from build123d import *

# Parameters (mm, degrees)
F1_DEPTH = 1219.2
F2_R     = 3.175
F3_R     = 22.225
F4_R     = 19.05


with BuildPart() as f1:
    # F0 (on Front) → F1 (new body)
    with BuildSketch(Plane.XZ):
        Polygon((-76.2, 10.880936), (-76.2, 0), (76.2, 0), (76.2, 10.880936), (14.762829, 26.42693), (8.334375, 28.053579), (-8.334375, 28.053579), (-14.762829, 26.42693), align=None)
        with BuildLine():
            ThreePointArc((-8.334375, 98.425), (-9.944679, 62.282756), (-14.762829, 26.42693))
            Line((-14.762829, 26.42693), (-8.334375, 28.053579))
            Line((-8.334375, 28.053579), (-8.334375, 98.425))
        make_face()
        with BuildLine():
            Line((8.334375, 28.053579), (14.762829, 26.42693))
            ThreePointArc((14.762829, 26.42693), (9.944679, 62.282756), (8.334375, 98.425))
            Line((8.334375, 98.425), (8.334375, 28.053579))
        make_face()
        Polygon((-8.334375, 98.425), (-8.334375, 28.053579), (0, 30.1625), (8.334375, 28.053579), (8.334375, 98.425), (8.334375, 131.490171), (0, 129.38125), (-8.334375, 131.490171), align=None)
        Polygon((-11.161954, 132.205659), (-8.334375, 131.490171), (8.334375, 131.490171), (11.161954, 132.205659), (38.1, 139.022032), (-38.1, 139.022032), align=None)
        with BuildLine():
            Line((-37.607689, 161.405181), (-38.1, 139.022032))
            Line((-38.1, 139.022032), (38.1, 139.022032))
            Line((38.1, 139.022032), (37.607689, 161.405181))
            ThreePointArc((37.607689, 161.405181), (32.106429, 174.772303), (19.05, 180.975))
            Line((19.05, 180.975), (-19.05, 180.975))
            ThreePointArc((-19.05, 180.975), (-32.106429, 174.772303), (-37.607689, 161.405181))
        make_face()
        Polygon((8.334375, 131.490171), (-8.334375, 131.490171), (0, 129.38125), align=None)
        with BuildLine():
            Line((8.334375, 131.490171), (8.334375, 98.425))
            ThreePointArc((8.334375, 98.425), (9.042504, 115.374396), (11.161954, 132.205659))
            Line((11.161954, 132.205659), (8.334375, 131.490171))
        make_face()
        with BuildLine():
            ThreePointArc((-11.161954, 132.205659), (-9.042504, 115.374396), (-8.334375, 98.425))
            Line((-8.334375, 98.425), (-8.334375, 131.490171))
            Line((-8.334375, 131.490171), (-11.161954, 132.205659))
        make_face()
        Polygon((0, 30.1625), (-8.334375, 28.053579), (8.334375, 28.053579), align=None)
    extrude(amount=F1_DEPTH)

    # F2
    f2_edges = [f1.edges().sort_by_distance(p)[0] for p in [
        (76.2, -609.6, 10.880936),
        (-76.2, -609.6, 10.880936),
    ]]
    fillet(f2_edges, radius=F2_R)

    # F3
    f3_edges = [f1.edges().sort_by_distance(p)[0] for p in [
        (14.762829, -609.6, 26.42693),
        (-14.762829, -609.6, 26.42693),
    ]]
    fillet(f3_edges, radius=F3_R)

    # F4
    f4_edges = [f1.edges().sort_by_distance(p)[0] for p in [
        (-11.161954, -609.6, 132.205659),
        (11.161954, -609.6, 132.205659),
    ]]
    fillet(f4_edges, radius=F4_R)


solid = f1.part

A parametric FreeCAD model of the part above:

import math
import FreeCAD as App
import Part
import Sketcher

V = App.Vector
Q = App.Units.Quantity


def edges_at(feature, points):
    """Names of the edges that pass closest to the given points."""
    edges = feature.Shape.Edges
    near = lambda p: min(range(len(edges)), key=lambda i: edges[i].distToShape(Part.Vertex(*p))[0])
    return sorted({f"Edge{near(p) + 1}" for p in points})

doc = App.newDocument("Part")
body = doc.addObject("PartDesign::Body", "Body")

sketch1 = body.newObject("Sketcher::SketchObject", "Sketch")
sketch1.AttachmentSupport = (doc.getObject("XZ_Plane"), [""])
sketch1.MapMode = "FlatFace"
sketch1.addGeometry([
    Part.LineSegment(V(-76.2, 10.880936, 0), V(-76.2, 0, 0)),
    Part.LineSegment(V(-76.2, 0, 0), V(76.2, 0, 0)),
    Part.LineSegment(V(76.2, 0, 0), V(76.2, 10.880936, 0)),
    Part.LineSegment(V(76.2, 10.880936, 0), V(14.762829, 26.42693, 0)),
    Part.ArcOfCircle(Part.Circle(V(414.734393, 98.425004, 0), V(0, 0, 1), 406.400018), math.radians(-179.999999), math.radians(-169.795583)),
    Part.ArcOfCircle(Part.Circle(V(211.53449, 98.424991, 0), V(0, 0, 1), 203.200115), math.radians(170.430529), math.radians(179.999997)),
    Part.LineSegment(V(11.161954, 132.205659, 0), V(38.1, 139.022032, 0)),
    Part.LineSegment(V(38.1, 139.022032, 0), V(37.607689, 161.405181, 0)),
    Part.ArcOfCircle(Part.Circle(V(17.544929, 160.963908, 0), V(0, 0, 1), 20.067612), math.radians(1.259996), math.radians(85.698779)),
    Part.LineSegment(V(19.05, 180.975, 0), V(-19.05, 180.975, 0)),
    Part.ArcOfCircle(Part.Circle(V(-17.544929, 160.963908, 0), V(0, 0, 1), 20.067612), math.radians(94.301221), math.radians(178.740004)),
    Part.LineSegment(V(-37.607689, 161.405181, 0), V(-38.1, 139.022032, 0)),
    Part.LineSegment(V(-38.1, 139.022032, 0), V(-11.161954, 132.205659, 0)),
    Part.ArcOfCircle(Part.Circle(V(-211.53449, 98.424991, 0), V(0, 0, 1), 203.200115), math.radians(0.000003), math.radians(9.569471)),
    Part.ArcOfCircle(Part.Circle(V(-414.734393, 98.425004, 0), V(0, 0, 1), 406.400018), math.radians(-10.204417), math.radians(-0.000001)),
    Part.LineSegment(V(-14.762829, 26.42693, 0), V(-76.2, 10.880936, 0)),
], False)
sketch1.addConstraint([
    Sketcher.Constraint("Coincident", 0, 2, 1, 1),
    Sketcher.Constraint("Coincident", 1, 2, 2, 1),
    Sketcher.Constraint("Coincident", 2, 2, 3, 1),
    Sketcher.Constraint("Coincident", 3, 2, 4, 2),
    Sketcher.Constraint("Tangent", 4, 1, 5, 2),
    Sketcher.Constraint("Coincident", 5, 1, 6, 1),
    Sketcher.Constraint("Coincident", 6, 2, 7, 1),
    Sketcher.Constraint("Tangent", 7, 2, 8, 1),
    Sketcher.Constraint("Coincident", 8, 2, 9, 1),
    Sketcher.Constraint("Coincident", 9, 2, 10, 1),
    Sketcher.Constraint("Tangent", 10, 2, 11, 1),
    Sketcher.Constraint("Coincident", 11, 2, 12, 1),
    Sketcher.Constraint("Coincident", 12, 2, 13, 2),
    Sketcher.Constraint("Tangent", 13, 1, 14, 2),
    Sketcher.Constraint("Coincident", 14, 1, 15, 1),
    Sketcher.Constraint("Coincident", 15, 2, 0, 1),
    Sketcher.Constraint("Vertical", 0),
    Sketcher.Constraint("Horizontal", 1),
    Sketcher.Constraint("Vertical", 2),
    Sketcher.Constraint("Horizontal", 9),
    Sketcher.Constraint("Equal", 8, 10),
    Sketcher.Constraint("Equal", 5, 13),
    Sketcher.Constraint("Equal", 4, 14),
    Sketcher.Constraint("Symmetric", 0, 2, 1, 2, -1, 1),
    Sketcher.Constraint("Symmetric", 8, 3, 10, 3, -2),
    Sketcher.Constraint("Symmetric", 5, 3, 13, 3, -2),
    Sketcher.Constraint("Symmetric", 6, 2, 11, 2, -2),
    Sketcher.Constraint("Symmetric", 3, 2, 14, 1, -2),
    Sketcher.Constraint("Parallel", 3, 12),
    Sketcher.Constraint("Parallel", 6, 15),
    Sketcher.Constraint("Horizontal", 5, 1, 12, 2),
    Sketcher.Constraint("DistanceX", 1, 1, 1, 2, Q("6 in")),
    Sketcher.Constraint("DistanceX", 9, 2, 9, 1, Q("1.5 in")),
    Sketcher.Constraint("DistanceX", -1, 1, 6, 2, Q("1.5 in")),
    Sketcher.Constraint("Angle", 3, Q("165.8 deg")),
    Sketcher.Constraint("Angle", 7, Q("91.260001 deg")),
    Sketcher.Constraint("DistanceY", -1, 1, 4, 3, Q("3.8750001 in")),
    Sketcher.Constraint("DistanceX", -1, 1, 4, 1, Q("0.328125 in")),
    Sketcher.Constraint("DistanceY", -1, 1, 4, 1, Q("3.875 in")),
    Sketcher.Constraint("DistanceY", -1, 1, 8, 2, Q("7.125 in")),
    Sketcher.Constraint("Radius", 8, Q("20.067612 mm")),
    Sketcher.Constraint("Radius", 4, Q("406.400018 mm")),
    Sketcher.Constraint("Radius", 5, Q("203.200115 mm")),
    Sketcher.Constraint("DistanceX", 3, 2, 8, 3, Q("2.7821 mm")),
    Sketcher.Constraint("DistanceY", 3, 2, 6, 2, Q("112.595102 mm")),
])
pad1 = body.newObject("PartDesign::Pad", "Pad")
pad1.Profile = sketch1
pad1.Length = Q("48 in")
doc.recompute()

fillet = body.newObject("PartDesign::Fillet", "Fillet")
fillet.Base = (pad1, edges_at(pad1, [(76.2, -609.6, 10.881), (-76.2, -609.6, 10.881)]))
fillet.Radius = Q("0.125 in")
doc.recompute()

fillet2 = body.newObject("PartDesign::Fillet", "Fillet001")
fillet2.Base = (fillet, edges_at(fillet, [(14.763, -609.6, 26.427), (-14.763, -609.6, 26.427)]))
fillet2.Radius = Q("0.875 in")
doc.recompute()

fillet3 = body.newObject("PartDesign::Fillet", "Fillet002")
fillet3.Base = (fillet2, edges_at(fillet2, [(-11.162, -609.6, 132.206), (11.162, -609.6, 132.206)]))
fillet3.Radius = Q("0.75 in")

doc.recompute()
